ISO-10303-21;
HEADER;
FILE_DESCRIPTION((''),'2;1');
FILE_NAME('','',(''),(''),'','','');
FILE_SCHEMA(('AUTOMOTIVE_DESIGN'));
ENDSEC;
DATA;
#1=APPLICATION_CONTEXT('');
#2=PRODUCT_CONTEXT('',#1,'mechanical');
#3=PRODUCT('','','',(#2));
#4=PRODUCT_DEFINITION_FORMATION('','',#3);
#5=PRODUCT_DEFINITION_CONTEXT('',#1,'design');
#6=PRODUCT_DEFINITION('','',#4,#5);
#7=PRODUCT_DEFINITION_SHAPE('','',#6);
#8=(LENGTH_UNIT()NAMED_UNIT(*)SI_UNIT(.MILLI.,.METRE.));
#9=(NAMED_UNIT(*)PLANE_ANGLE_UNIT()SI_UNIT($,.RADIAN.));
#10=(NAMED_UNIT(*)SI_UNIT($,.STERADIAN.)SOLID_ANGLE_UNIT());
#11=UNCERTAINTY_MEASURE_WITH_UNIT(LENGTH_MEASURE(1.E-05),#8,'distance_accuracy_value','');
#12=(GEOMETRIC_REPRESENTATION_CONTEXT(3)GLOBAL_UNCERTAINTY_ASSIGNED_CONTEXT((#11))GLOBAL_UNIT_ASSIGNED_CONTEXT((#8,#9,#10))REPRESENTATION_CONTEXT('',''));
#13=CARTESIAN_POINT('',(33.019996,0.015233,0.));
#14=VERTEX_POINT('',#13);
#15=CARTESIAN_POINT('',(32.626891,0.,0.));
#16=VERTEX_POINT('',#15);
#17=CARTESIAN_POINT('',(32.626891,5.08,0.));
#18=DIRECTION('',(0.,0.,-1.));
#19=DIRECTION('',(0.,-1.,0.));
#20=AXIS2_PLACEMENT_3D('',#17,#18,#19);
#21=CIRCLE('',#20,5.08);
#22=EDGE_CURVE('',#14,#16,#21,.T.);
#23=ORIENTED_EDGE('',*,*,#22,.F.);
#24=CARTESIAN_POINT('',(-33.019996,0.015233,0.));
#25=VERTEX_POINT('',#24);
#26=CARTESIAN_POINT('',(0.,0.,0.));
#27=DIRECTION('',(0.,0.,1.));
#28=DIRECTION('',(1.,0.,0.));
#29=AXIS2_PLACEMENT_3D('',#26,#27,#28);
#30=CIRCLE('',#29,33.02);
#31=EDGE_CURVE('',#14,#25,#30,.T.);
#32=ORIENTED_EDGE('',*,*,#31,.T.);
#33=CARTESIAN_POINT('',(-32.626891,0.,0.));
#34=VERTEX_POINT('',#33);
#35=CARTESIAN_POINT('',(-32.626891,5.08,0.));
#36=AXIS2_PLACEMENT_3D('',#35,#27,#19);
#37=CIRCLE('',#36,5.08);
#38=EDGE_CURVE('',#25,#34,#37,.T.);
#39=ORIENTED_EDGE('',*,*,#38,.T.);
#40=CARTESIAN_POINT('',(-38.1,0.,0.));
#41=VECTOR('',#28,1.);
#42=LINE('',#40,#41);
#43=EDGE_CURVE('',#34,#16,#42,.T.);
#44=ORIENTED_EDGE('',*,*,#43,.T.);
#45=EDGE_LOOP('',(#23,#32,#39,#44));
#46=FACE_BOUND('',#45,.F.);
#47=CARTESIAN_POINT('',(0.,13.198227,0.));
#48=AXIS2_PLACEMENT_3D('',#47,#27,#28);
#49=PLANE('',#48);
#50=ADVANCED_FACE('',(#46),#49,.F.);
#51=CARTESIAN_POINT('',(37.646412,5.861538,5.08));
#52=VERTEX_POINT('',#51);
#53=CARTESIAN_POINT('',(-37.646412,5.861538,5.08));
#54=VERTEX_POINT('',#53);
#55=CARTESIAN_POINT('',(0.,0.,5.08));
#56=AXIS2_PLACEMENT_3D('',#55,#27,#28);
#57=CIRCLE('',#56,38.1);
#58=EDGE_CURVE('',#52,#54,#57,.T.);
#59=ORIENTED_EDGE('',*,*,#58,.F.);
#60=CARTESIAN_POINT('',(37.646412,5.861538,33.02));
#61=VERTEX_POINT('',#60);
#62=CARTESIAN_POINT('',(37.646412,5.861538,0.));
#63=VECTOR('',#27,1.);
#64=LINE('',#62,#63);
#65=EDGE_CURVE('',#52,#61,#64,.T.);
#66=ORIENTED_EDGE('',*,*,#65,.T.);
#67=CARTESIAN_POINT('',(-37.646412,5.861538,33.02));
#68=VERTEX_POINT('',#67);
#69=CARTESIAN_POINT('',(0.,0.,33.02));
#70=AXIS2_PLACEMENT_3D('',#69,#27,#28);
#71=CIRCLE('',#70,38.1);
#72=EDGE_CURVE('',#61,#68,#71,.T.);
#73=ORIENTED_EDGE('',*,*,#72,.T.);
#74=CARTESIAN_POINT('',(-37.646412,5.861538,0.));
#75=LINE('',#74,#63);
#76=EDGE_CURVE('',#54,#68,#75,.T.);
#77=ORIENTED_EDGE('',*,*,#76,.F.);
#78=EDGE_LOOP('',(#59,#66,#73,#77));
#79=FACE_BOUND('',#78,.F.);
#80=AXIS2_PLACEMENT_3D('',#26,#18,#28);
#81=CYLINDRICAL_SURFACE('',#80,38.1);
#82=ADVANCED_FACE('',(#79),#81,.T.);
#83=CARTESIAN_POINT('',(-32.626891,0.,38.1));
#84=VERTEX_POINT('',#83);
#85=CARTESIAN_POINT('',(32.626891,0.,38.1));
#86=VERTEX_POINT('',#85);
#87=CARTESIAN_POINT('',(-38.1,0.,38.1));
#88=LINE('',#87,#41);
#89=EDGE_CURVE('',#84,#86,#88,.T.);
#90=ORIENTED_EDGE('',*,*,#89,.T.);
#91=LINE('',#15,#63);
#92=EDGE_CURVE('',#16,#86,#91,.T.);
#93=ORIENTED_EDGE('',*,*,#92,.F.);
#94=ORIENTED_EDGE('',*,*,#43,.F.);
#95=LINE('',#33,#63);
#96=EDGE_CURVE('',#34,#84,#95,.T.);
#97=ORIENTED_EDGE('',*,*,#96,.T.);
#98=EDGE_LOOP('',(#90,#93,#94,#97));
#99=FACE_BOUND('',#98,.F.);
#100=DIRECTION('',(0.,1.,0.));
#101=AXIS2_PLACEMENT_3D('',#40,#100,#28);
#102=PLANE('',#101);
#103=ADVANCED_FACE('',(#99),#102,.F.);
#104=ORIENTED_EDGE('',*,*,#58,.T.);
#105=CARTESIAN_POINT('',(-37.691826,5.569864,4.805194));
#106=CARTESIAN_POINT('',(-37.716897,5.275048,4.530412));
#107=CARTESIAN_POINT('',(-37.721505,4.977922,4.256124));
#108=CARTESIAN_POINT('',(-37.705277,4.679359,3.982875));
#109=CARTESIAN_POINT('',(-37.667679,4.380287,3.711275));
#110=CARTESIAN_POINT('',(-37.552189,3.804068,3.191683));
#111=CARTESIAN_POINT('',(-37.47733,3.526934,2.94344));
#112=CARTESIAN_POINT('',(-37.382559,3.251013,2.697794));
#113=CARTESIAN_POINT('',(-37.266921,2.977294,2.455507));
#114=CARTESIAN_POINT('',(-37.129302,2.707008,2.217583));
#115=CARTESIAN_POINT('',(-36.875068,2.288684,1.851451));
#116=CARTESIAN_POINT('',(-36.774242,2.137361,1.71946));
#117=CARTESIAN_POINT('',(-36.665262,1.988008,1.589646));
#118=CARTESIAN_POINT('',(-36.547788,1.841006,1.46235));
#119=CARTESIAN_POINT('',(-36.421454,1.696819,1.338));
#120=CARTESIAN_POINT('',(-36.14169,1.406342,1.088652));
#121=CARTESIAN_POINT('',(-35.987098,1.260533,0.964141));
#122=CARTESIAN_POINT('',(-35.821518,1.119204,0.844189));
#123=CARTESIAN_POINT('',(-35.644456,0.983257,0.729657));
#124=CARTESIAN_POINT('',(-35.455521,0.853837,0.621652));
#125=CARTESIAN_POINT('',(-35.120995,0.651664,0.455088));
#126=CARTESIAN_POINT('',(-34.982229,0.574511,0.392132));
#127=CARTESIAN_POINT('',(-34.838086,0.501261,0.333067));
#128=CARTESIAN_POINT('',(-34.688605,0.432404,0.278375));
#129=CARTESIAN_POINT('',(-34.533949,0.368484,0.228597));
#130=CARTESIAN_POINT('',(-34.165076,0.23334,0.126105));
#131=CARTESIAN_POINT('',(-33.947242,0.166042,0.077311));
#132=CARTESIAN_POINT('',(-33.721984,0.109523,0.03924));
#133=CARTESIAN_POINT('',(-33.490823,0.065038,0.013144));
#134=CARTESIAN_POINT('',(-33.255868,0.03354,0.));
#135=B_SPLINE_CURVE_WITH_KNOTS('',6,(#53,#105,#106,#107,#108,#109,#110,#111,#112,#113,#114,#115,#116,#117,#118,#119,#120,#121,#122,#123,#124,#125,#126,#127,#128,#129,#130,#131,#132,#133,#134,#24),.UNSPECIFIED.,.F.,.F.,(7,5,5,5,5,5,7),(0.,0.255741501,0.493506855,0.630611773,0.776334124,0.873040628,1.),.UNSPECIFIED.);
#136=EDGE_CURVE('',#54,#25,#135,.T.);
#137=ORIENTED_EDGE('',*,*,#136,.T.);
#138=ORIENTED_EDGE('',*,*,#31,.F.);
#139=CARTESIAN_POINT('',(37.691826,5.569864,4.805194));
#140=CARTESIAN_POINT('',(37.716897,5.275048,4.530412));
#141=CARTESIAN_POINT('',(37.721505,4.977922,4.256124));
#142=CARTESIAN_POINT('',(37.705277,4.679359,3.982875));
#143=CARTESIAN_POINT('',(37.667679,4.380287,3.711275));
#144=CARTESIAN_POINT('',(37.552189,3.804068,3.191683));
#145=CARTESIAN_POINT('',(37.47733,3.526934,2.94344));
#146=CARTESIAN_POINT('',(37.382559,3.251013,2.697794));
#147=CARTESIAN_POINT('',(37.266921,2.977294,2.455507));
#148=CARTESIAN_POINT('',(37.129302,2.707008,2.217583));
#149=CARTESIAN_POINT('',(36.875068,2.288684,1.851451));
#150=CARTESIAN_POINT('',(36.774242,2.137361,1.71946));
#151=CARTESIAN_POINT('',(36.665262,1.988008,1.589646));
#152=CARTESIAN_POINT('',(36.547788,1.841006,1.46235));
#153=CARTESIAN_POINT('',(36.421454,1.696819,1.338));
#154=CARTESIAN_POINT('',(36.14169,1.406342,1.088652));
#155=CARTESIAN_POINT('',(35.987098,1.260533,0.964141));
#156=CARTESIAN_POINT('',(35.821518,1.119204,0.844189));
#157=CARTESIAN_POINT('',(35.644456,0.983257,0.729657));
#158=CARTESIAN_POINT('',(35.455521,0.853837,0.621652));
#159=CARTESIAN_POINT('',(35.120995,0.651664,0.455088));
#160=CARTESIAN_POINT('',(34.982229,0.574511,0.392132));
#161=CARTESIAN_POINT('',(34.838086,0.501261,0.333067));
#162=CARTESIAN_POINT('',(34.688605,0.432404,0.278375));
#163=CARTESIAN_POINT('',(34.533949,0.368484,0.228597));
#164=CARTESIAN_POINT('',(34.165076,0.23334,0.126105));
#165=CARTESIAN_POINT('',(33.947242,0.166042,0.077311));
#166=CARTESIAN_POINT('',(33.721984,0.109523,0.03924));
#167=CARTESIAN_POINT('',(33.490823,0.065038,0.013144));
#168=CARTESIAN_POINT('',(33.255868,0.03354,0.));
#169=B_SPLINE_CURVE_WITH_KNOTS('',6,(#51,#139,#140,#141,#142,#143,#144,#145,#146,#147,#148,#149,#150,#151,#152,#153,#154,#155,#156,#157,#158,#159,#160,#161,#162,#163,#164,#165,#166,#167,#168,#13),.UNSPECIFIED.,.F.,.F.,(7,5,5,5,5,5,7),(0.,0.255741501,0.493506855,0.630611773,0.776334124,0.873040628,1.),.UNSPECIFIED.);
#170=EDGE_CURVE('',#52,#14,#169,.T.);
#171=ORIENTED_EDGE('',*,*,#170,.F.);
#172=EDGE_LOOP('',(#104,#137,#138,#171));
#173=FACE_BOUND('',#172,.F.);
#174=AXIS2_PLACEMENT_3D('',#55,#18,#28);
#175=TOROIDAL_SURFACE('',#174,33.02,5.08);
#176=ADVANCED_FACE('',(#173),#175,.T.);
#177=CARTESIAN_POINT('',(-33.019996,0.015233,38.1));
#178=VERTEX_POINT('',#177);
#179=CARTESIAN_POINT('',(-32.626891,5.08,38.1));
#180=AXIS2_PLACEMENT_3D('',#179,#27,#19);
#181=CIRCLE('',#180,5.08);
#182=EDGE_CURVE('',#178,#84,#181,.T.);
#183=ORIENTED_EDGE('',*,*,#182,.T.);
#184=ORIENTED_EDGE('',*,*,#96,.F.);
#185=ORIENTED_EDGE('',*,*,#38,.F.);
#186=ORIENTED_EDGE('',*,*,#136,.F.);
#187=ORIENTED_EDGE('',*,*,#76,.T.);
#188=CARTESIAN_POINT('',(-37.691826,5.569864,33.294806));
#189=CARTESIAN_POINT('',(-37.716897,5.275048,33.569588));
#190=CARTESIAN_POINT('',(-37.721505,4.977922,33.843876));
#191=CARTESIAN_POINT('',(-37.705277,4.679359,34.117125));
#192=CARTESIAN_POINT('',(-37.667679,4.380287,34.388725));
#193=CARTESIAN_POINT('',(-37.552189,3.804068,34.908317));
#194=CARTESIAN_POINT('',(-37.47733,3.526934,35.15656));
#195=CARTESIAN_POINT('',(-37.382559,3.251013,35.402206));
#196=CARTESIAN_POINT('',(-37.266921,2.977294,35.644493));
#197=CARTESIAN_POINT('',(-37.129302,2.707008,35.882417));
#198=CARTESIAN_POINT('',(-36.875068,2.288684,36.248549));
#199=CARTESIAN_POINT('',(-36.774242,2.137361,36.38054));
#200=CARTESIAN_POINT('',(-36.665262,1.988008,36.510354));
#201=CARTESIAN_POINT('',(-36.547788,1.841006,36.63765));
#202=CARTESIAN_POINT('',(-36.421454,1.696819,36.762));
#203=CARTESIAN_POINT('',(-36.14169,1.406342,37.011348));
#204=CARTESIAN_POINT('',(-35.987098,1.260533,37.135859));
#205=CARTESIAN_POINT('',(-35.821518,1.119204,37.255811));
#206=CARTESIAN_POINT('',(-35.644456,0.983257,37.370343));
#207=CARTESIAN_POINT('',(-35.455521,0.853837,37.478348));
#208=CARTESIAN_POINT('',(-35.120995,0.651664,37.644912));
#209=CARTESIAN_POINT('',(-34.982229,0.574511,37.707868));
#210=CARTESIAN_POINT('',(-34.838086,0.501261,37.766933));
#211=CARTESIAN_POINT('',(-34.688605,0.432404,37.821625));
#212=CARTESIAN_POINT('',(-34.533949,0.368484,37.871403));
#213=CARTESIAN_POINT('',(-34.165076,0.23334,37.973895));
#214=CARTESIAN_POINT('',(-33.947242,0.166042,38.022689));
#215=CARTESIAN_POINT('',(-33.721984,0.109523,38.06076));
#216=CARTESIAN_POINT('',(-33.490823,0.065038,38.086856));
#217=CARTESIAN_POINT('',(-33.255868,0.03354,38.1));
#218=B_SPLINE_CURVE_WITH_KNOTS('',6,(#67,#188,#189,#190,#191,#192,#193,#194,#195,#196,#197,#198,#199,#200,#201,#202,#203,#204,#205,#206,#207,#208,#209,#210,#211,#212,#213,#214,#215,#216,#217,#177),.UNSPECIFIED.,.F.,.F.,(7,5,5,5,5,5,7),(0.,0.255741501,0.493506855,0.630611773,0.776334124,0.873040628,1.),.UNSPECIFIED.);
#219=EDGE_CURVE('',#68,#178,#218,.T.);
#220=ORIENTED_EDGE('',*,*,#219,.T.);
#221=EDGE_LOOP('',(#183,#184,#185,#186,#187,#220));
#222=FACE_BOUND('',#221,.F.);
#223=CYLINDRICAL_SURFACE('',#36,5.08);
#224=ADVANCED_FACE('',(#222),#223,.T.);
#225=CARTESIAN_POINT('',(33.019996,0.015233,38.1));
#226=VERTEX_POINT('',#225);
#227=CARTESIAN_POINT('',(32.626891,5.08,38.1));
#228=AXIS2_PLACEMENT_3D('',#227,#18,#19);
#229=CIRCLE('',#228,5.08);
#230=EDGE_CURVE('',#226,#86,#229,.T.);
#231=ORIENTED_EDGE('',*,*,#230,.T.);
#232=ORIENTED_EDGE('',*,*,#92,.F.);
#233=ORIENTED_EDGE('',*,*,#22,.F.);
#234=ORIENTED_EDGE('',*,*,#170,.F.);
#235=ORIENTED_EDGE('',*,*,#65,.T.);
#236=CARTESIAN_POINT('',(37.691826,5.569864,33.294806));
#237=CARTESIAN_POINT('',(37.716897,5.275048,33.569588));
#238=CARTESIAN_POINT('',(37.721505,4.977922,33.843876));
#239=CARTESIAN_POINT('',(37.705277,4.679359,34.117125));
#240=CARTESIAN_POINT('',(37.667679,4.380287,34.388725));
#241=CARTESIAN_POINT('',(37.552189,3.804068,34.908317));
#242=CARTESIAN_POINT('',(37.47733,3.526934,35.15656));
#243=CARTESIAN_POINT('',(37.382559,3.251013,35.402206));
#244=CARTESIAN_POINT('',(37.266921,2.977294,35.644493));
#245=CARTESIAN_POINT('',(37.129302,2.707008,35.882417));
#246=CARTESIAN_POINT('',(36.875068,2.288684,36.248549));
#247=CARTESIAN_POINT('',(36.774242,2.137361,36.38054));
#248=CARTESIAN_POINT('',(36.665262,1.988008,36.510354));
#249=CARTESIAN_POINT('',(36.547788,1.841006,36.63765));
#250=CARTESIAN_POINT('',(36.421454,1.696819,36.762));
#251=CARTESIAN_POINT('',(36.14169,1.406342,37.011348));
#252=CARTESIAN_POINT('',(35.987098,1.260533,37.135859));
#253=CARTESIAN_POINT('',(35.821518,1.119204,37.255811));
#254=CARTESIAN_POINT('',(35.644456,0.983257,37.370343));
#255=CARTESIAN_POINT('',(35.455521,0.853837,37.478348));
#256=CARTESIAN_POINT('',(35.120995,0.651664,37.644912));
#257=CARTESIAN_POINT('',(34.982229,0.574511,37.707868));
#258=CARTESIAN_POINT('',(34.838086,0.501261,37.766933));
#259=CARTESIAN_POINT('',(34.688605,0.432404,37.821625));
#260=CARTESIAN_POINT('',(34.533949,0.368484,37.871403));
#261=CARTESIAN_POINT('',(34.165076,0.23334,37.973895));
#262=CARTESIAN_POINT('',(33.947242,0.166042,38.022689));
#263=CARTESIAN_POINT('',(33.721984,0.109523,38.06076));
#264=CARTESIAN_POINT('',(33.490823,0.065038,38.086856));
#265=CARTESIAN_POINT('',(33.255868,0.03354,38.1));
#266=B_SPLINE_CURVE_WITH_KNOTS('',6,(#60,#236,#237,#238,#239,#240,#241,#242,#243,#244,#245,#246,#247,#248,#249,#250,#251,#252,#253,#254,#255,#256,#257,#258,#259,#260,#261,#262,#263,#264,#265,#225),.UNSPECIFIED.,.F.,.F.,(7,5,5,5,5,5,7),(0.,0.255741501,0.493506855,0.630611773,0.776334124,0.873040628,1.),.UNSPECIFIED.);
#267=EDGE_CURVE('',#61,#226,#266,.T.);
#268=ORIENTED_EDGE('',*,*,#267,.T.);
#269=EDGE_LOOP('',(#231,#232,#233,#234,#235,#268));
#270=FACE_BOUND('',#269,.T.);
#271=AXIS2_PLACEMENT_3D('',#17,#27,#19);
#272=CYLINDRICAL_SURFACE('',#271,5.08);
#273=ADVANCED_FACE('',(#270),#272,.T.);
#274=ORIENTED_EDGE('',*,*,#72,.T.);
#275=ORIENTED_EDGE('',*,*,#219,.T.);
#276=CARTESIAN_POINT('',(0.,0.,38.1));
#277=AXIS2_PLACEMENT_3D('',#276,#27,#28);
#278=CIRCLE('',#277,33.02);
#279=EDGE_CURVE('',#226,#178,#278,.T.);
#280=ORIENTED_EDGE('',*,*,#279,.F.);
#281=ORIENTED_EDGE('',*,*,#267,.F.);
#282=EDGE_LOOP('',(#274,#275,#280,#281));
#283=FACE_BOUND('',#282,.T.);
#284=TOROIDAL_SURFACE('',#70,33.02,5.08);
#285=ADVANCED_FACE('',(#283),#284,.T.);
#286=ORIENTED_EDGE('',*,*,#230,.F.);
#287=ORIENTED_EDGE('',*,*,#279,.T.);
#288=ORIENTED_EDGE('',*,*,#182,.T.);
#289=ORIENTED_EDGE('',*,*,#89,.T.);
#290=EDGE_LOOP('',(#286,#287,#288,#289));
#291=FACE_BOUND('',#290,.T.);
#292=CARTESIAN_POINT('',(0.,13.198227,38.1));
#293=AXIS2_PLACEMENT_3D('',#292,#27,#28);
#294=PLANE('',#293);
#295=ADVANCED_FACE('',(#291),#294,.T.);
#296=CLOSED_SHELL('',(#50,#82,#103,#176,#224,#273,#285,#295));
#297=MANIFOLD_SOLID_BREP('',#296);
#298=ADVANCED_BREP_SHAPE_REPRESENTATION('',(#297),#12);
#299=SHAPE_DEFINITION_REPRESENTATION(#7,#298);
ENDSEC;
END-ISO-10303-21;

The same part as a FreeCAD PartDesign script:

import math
import FreeCAD as App
import Part
import Sketcher
Q = App.Units.Quantity


def edges_at(feature, points):
    """Names of the edges that pass closest to the given points."""
    edges = feature.Shape.Edges
    near = lambda p: min(range(len(edges)), key=lambda i: edges[i].distToShape(Part.Vertex(*p))[0])
    return sorted({f"Edge{near(p) + 1}" for p in points})

doc = App.newDocument("Part")
body = doc.addObject("PartDesign::Body", "Body")

# Sketch on XY plane
sketch1 = body.newObject("Sketcher::SketchObject", "Sketch")
sketch1.AttachmentSupport = (doc.getObject("XY_Plane"), [""])
sketch1.MapMode = "FlatFace"
sketch1.addGeometry([
    Part.LineSegment(App.Vector(-38, 0, 0), App.Vector(38, 0, 0)),
    Part.ArcOfCircle(Part.Circle(App.Vector(0, 0, 0), App.Vector(0, 0, 1), 38), math.radians(0), math.radians(180)),
], False)
sketch1.addConstraint([
    Sketcher.Constraint("Coincident", 0, 1, 1, 2),
    Sketcher.Constraint("Coincident", 1, 1, 0, 2),
    Sketcher.Constraint("Horizontal", 0),
    Sketcher.Constraint("Coincident", 1, 3, -1, 1),
    Sketcher.Constraint("PointOnObject", 0, 1, -1),
    Sketcher.Constraint("Radius", 1, Q("1.5 in")),
])
pad1 = body.newObject("PartDesign::Pad", "Pad")
pad1.Profile = sketch1
pad1.Length = Q("1.5 in")
doc.recompute()

fillet = body.newObject("PartDesign::Fillet", "Fillet")
fillet.Base = (pad1, edges_at(pad1, [
    (0, 38.1, 38.1),
    (38.1, 0, 19.05),
    (-38.1, 0, 19.05),
    (0, 38.1, 0),
]))
fillet.Radius = Q("0.2 in")

doc.recompute()
